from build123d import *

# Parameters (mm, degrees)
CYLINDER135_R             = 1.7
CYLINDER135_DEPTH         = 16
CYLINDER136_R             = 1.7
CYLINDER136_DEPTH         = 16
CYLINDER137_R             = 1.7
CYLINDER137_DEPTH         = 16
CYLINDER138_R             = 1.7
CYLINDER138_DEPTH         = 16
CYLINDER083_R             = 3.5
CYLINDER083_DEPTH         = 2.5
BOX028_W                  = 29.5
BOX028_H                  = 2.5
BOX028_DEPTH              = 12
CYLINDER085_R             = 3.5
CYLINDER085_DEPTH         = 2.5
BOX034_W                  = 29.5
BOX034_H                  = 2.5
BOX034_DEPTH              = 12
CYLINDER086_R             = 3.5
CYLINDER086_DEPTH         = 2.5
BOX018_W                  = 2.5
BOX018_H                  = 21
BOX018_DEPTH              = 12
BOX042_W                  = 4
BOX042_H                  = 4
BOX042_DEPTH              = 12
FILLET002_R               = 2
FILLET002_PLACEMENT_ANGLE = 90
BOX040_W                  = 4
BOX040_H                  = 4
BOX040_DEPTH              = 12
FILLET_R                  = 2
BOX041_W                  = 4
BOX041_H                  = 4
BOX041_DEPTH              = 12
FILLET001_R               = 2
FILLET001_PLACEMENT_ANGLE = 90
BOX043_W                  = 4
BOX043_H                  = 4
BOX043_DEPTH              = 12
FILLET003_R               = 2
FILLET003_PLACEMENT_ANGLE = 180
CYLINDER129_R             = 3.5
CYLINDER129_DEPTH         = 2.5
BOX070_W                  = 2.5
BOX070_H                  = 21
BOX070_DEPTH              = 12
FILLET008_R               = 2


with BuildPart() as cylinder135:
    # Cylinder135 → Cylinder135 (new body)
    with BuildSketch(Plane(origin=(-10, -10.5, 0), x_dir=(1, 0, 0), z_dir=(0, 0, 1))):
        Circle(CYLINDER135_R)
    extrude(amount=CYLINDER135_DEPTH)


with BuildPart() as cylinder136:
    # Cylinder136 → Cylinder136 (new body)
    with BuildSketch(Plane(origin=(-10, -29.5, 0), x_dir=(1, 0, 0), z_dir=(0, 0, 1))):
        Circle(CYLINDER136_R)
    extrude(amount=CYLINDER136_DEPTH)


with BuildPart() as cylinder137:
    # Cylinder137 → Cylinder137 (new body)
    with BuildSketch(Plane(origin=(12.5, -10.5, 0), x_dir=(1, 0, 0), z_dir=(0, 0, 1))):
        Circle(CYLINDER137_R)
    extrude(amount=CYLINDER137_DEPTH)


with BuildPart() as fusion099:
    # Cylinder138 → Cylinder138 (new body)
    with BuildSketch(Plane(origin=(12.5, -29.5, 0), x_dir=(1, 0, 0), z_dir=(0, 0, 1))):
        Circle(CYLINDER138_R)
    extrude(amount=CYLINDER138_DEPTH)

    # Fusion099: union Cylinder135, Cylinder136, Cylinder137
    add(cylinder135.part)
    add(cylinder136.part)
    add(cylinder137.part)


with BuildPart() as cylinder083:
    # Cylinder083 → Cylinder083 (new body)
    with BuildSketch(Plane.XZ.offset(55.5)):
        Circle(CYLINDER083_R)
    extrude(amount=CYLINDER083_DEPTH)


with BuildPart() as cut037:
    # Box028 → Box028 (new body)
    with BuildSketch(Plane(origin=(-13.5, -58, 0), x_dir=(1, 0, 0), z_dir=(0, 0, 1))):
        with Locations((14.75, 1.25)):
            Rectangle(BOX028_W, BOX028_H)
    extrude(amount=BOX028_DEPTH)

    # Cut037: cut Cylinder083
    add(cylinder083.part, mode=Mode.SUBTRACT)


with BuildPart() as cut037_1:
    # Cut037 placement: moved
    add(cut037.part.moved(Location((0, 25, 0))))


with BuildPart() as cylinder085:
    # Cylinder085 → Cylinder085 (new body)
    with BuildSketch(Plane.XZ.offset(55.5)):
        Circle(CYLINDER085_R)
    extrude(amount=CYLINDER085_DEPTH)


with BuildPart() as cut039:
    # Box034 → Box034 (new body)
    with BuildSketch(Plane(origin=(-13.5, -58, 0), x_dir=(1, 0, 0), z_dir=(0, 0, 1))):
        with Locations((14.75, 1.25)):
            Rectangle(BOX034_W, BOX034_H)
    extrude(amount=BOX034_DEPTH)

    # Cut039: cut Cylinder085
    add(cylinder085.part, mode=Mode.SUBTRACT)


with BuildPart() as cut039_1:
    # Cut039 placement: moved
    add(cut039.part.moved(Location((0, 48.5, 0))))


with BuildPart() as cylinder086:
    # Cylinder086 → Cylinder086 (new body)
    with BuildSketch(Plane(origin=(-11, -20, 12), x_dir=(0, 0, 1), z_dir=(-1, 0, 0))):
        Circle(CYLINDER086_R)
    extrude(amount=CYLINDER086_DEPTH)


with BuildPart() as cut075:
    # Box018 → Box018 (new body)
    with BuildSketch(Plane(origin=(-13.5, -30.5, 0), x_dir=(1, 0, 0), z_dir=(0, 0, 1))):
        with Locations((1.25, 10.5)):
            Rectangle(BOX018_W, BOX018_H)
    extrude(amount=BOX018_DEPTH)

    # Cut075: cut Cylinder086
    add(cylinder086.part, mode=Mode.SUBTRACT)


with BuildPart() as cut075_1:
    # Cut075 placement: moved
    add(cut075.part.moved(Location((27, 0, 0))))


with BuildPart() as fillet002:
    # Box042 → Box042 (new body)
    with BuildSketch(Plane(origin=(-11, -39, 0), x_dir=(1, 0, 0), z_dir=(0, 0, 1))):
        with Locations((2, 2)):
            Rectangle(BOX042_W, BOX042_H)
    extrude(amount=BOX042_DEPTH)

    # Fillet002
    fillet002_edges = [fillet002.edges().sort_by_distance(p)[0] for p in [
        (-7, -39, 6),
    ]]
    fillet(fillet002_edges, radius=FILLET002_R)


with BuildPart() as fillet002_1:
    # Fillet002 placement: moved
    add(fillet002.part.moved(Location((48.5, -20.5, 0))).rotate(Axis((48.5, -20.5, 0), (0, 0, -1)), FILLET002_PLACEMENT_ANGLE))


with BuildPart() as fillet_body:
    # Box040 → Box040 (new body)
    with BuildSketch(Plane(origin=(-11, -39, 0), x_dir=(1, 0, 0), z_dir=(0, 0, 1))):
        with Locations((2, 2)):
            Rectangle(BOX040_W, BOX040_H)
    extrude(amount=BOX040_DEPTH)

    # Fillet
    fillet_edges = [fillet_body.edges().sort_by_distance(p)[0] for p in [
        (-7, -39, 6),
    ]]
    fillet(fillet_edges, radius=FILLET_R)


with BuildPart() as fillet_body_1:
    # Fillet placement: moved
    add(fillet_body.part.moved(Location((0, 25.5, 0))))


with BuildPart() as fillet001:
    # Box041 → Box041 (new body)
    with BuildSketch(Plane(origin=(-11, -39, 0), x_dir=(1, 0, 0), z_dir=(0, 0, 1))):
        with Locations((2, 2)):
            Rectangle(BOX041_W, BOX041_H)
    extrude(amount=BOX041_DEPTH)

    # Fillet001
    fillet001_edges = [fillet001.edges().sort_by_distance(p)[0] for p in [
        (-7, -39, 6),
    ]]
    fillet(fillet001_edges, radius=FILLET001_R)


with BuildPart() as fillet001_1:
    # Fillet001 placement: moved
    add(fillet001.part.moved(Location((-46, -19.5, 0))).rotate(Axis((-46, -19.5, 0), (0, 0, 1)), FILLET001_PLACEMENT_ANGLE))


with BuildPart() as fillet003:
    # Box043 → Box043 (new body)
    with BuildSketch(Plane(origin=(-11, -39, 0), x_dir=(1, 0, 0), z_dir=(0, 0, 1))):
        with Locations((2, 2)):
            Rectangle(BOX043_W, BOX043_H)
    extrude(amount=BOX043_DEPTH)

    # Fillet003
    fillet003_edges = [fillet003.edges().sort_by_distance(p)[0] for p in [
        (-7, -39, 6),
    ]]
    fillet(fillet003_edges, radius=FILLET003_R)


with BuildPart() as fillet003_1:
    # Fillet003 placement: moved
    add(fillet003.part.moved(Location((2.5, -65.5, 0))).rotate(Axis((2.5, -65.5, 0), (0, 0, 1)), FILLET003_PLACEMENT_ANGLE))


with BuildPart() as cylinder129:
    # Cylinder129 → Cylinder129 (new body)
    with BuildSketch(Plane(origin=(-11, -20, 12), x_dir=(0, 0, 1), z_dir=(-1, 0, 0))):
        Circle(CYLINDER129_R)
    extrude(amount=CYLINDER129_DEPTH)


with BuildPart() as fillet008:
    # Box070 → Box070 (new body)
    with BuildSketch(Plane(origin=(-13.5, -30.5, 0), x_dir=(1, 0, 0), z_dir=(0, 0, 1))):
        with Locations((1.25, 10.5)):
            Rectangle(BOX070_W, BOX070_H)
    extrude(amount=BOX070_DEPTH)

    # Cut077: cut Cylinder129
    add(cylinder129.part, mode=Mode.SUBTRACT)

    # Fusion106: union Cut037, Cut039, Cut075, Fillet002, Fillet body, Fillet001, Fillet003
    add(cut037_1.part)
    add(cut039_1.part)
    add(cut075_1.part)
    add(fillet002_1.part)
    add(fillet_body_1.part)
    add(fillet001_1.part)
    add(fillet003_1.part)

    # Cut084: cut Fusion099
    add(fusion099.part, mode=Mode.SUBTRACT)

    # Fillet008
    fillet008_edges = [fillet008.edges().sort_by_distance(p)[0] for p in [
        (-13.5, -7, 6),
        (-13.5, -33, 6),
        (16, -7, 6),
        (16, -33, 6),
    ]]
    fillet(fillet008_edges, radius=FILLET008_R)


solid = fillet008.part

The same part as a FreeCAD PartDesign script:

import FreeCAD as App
import Part
import Sketcher
from FreeCAD import Vector


def edges_at(feature, points):
    """Names of the edges that pass closest to the given points."""
    edges = feature.Shape.Edges
    near = lambda p: min(range(len(edges)), key=lambda i: edges[i].distToShape(Part.Vertex(*p))[0])
    return sorted({f"Edge{near(p) + 1}" for p in points})

doc = App.newDocument("Part")
body = doc.addObject("PartDesign::Body", "Body")

sketch1 = body.newObject("Sketcher::SketchObject", "Sketch")
sketch1.AttachmentSupport = (doc.getObject("XY_Plane"), [""])
sketch1.MapMode = "FlatFace"
sketch1.addGeometry(Part.Circle(Vector(-10, -10.5, 0), Vector(0, 0, 1), 1.7), False)
sketch1.addConstraint([
    Sketcher.Constraint("Diameter", 0, 3.4),
    Sketcher.Constraint("DistanceX", 0, 3, -1, 1, 10.0),
    Sketcher.Constraint("DistanceY", 0, 3, -1, 1, 10.5),
])
pad1 = body.newObject("PartDesign::Pad", "Pad")
pad1.Profile = sketch1
pad1.Length = 16
body2 = doc.addObject("PartDesign::Body", "Body001")

sketch2 = body2.newObject("Sketcher::SketchObject", "Sketch001")
sketch2.AttachmentSupport = (doc.getObject("XY_Plane001"), [""])
sketch2.MapMode = "FlatFace"
sketch2.addGeometry(Part.Circle(Vector(-10, -29.5, 0), Vector(0, 0, 1), 1.7), False)
sketch2.addConstraint([
    Sketcher.Constraint("Diameter", 0, 3.4),
    Sketcher.Constraint("DistanceX", 0, 3, -1, 1, 10.0),
    Sketcher.Constraint("DistanceY", 0, 3, -1, 1, 29.5),
])
pad2 = body2.newObject("PartDesign::Pad", "Pad001")
pad2.Profile = sketch2
pad2.Length = 16
body3 = doc.addObject("PartDesign::Body", "Body002")

sketch3 = body3.newObject("Sketcher::SketchObject", "Sketch002")
sketch3.AttachmentSupport = (doc.getObject("XY_Plane002"), [""])
sketch3.MapMode = "FlatFace"
sketch3.addGeometry(Part.Circle(Vector(12.5, -10.5, 0), Vector(0, 0, 1), 1.7), False)
sketch3.addConstraint([
    Sketcher.Constraint("Diameter", 0, 3.4),
    Sketcher.Constraint("DistanceX", -1, 1, 0, 3, 12.5),
    Sketcher.Constraint("DistanceY", 0, 3, -1, 1, 10.5),
])
pad3 = body3.newObject("PartDesign::Pad", "Pad002")
pad3.Profile = sketch3
pad3.Length = 16
body4 = doc.addObject("PartDesign::Body", "Body003")
body4.AllowCompound = True

sketch4 = body4.newObject("Sketcher::SketchObject", "Sketch003")
sketch4.AttachmentSupport = (doc.getObject("XY_Plane003"), [""])
sketch4.MapMode = "FlatFace"
sketch4.addGeometry(Part.Circle(Vector(12.5, -29.5, 0), Vector(0, 0, 1), 1.7), False)
sketch4.addConstraint([
    Sketcher.Constraint("Diameter", 0, 3.4),
    Sketcher.Constraint("DistanceX", -1, 1, 0, 3, 12.5),
    Sketcher.Constraint("DistanceY", 0, 3, -1, 1, 29.5),
])
pad4 = body4.newObject("PartDesign::Pad", "Pad003")
pad4.Profile = sketch4
pad4.Length = 16
doc.recompute()

boolean = body4.newObject("PartDesign::Boolean", "Boolean")
boolean.Type = "Fuse"
boolean.addObjects([body])
doc.recompute()

boolean2 = body4.newObject("PartDesign::Boolean", "Boolean001")
boolean2.Type = "Fuse"
boolean2.addObjects([body2])
doc.recompute()

boolean3 = body4.newObject("PartDesign::Boolean", "Boolean002")
boolean3.Type = "Fuse"
boolean3.addObjects([body3])
body5 = doc.addObject("PartDesign::Body", "Body004")

sketch5 = body5.newObject("Sketcher::SketchObject", "Sketch004")
sketch5.AttachmentSupport = (doc.getObject("XZ_Plane004"), [""])
sketch5.MapMode = "FlatFace"
sketch5.AttachmentOffset = App.Placement(Vector(0, 0, 55.5), App.Rotation())
sketch5.addGeometry(Part.Circle(Vector(0, 0, 0), Vector(0, 0, 1), 3.5), False)
sketch5.addConstraint([
    Sketcher.Constraint("Coincident", 0, 3, -1, 1),
    Sketcher.Constraint("Diameter", 0, 7.0),
])
pad5 = body5.newObject("PartDesign::Pad", "Pad004")
pad5.Profile = sketch5
pad5.Length = 2.5
body6 = doc.addObject("PartDesign::Body", "Body005")

sketch6 = body6.newObject("Sketcher::SketchObject", "Sketch005")
sketch6.AttachmentSupport = (doc.getObject("XY_Plane005"), [""])
sketch6.MapMode = "FlatFace"
sketch6.addGeometry([
    Part.LineSegment(Vector(-13.5, -55.5, 0), Vector(-13.5, -58, 0)),
    Part.LineSegment(Vector(-13.5, -58, 0), Vector(16, -58, 0)),
    Part.LineSegment(Vector(16, -58, 0), Vector(16, -55.5, 0)),
    Part.LineSegment(Vector(16, -55.5, 0), Vector(-13.5, -55.5, 0)),
], False)
sketch6.addConstraint([
    Sketcher.Constraint("Coincident", 0, 2, 1, 1),
    Sketcher.Constraint("Coincident", 1, 2, 2, 1),
    Sketcher.Constraint("Coincident", 2, 2, 3, 1),
    Sketcher.Constraint("Coincident", 3, 2, 0, 1),
    Sketcher.Constraint("Vertical", 0),
    Sketcher.Constraint("Horizontal", 1),
    Sketcher.Constraint("Vertical", 2),
    Sketcher.Constraint("Horizontal", 3),
    Sketcher.Constraint("DistanceX", 1, 1, 1, 2, 29.5),
    Sketcher.Constraint("DistanceY", 0, 2, 0, 1, 2.5),
    Sketcher.Constraint("DistanceY", 0, 2, -1, 1, 58.0),
    Sketcher.Constraint("DistanceX", -1, 1, 1, 2, 16.0),
])
pad6 = body6.newObject("PartDesign::Pad", "Pad005")
pad6.Profile = sketch6
pad6.Length = 12
doc.recompute()

boolean4 = body6.newObject("PartDesign::Boolean", "Boolean003")
boolean4.Type = "Cut"
boolean4.addObjects([body5])
body7 = doc.addObject("PartDesign::Body", "Body006")
doc.recompute()

body6.Placement = App.Placement(Vector(0, 25, 0), App.Rotation(Vector(0, 0, 1), 0))
boolean5 = body7.newObject("PartDesign::Boolean", "Boolean004")
boolean5.Type = "Fuse"
boolean5.addObjects([body6])
body8 = doc.addObject("PartDesign::Body", "Body007")

sketch7 = body8.newObject("Sketcher::SketchObject", "Sketch006")
sketch7.AttachmentSupport = (doc.getObject("XZ_Plane007"), [""])
sketch7.MapMode = "FlatFace"
sketch7.AttachmentOffset = App.Placement(Vector(0, 0, 55.5), App.Rotation())
sketch7.addGeometry(Part.Circle(Vector(0, 0, 0), Vector(0, 0, 1), 3.5), False)
sketch7.addConstraint([
    Sketcher.Constraint("Coincident", 0, 3, -1, 1),
    Sketcher.Constraint("Diameter", 0, 7.0),
])
pad7 = body8.newObject("PartDesign::Pad", "Pad006")
pad7.Profile = sketch7
pad7.Length = 2.5
body9 = doc.addObject("PartDesign::Body", "Body008")

sketch8 = body9.newObject("Sketcher::SketchObject", "Sketch007")
sketch8.AttachmentSupport = (doc.getObject("XY_Plane008"), [""])
sketch8.MapMode = "FlatFace"
sketch8.addGeometry([
    Part.LineSegment(Vector(-13.5, -55.5, 0), Vector(-13.5, -58, 0)),
    Part.LineSegment(Vector(-13.5, -58, 0), Vector(16, -58, 0)),
    Part.LineSegment(Vector(16, -58, 0), Vector(16, -55.5, 0)),
    Part.LineSegment(Vector(16, -55.5, 0), Vector(-13.5, -55.5, 0)),
], False)
sketch8.addConstraint([
    Sketcher.Constraint("Coincident", 0, 2, 1, 1),
    Sketcher.Constraint("Coincident", 1, 2, 2, 1),
    Sketcher.Constraint("Coincident", 2, 2, 3, 1),
    Sketcher.Constraint("Coincident", 3, 2, 0, 1),
    Sketcher.Constraint("Vertical", 0),
    Sketcher.Constraint("Horizontal", 1),
    Sketcher.Constraint("Vertical", 2),
    Sketcher.Constraint("Horizontal", 3),
    Sketcher.Constraint("DistanceX", 1, 1, 1, 2, 29.5),
    Sketcher.Constraint("DistanceY", 0, 2, 0, 1, 2.5),
    Sketcher.Constraint("DistanceY", 0, 2, -1, 1, 58.0),
    Sketcher.Constraint("DistanceX", -1, 1, 1, 2, 16.0),
])
pad8 = body9.newObject("PartDesign::Pad", "Pad007")
pad8.Profile = sketch8
pad8.Length = 12
doc.recompute()

boolean6 = body9.newObject("PartDesign::Boolean", "Boolean005")
boolean6.Type = "Cut"
boolean6.addObjects([body8])
body10 = doc.addObject("PartDesign::Body", "Body009")
doc.recompute()

body9.Placement = App.Placement(Vector(0, 48.5, 0), App.Rotation(Vector(0, 0, 1), 0))
boolean7 = body10.newObject("PartDesign::Boolean", "Boolean006")
boolean7.Type = "Fuse"
boolean7.addObjects([body9])
body11 = doc.addObject("PartDesign::Body", "Body010")

sketch9 = body11.newObject("Sketcher::SketchObject", "Sketch008")
sketch9.AttachmentSupport = (doc.getObject("YZ_Plane010"), [""])
sketch9.MapMode = "FlatFace"
sketch9.AttachmentOffset = App.Placement(Vector(0, 0, -11), App.Rotation())
sketch9.addGeometry(Part.Circle(Vector(-20, 12, 0), Vector(0, 0, 1), 3.5), False)
sketch9.addConstraint([
    Sketcher.Constraint("Diameter", 0, 7.0),
    Sketcher.Constraint("DistanceX", 0, 3, -1, 1, 20.0),
    Sketcher.Constraint("DistanceY", -1, 1, 0, 3, 12.0),
])
pad9 = body11.newObject("PartDesign::Pad", "Pad008")
pad9.Profile = sketch9
pad9.Length = 2.5
pad9.Reversed = True
body12 = doc.addObject("PartDesign::Body", "Body011")

sketch10 = body12.newObject("Sketcher::SketchObject", "Sketch009")
sketch10.AttachmentSupport = (doc.getObject("XY_Plane011"), [""])
sketch10.MapMode = "FlatFace"
sketch10.addGeometry([
    Part.LineSegment(Vector(-13.5, -9.5, 0), Vector(-13.5, -30.5, 0)),
    Part.LineSegment(Vector(-13.5, -30.5, 0), Vector(-11, -30.5, 0)),
    Part.LineSegment(Vector(-11, -30.5, 0), Vector(-11, -9.5, 0)),
    Part.LineSegment(Vector(-11, -9.5, 0), Vector(-13.5, -9.5, 0)),
], False)
sketch10.addConstraint([
    Sketcher.Constraint("Coincident", 0, 2, 1, 1),
    Sketcher.Constraint("Coincident", 1, 2, 2, 1),
    Sketcher.Constraint("Coincident", 2, 2, 3, 1),
    Sketcher.Constraint("Coincident", 3, 2, 0, 1),
    Sketcher.Constraint("Vertical", 0),
    Sketcher.Constraint("Horizontal", 1),
    Sketcher.Constraint("Vertical", 2),
    Sketcher.Constraint("Horizontal", 3),
    Sketcher.Constraint("DistanceY", 0, 2, 0, 1, 21.0),
    Sketcher.Constraint("DistanceX", 1, 1, 1, 2, 2.5),
    Sketcher.Constraint("DistanceX", 1, 2, -1, 1, 11.0),
    Sketcher.Constraint("DistanceY", 0, 2, -1, 1, 30.5),
])
pad10 = body12.newObject("PartDesign::Pad", "Pad009")
pad10.Profile = sketch10
pad10.Length = 12
doc.recompute()

boolean8 = body12.newObject("PartDesign::Boolean", "Boolean007")
boolean8.Type = "Cut"
boolean8.addObjects([body11])
body13 = doc.addObject("PartDesign::Body", "Body012")
doc.recompute()

body12.Placement = App.Placement(Vector(27, 0, 0), App.Rotation(Vector(0, 0, 1), 0))
boolean9 = body13.newObject("PartDesign::Boolean", "Boolean008")
boolean9.Type = "Fuse"
boolean9.addObjects([body12])
body14 = doc.addObject("PartDesign::Body", "Body013")

sketch11 = body14.newObject("Sketcher::SketchObject", "Sketch010")
sketch11.AttachmentSupport = (doc.getObject("XY_Plane013"), [""])
sketch11.MapMode = "FlatFace"
sketch11.addGeometry([
    Part.LineSegment(Vector(-11, -35, 0), Vector(-11, -39, 0)),
    Part.LineSegment(Vector(-11, -39, 0), Vector(-7, -39, 0)),
    Part.LineSegment(Vector(-7, -39, 0), Vector(-7, -35, 0)),
    Part.LineSegment(Vector(-7, -35, 0), Vector(-11, -35, 0)),
], False)
sketch11.addConstraint([
    Sketcher.Constraint("Coincident", 0, 2, 1, 1),
    Sketcher.Constraint("Coincident", 1, 2, 2, 1),
    Sketcher.Constraint("Coincident", 2, 2, 3, 1),
    Sketcher.Constraint("Coincident", 3, 2, 0, 1),
    Sketcher.Constraint("Vertical", 0),
    Sketcher.Constraint("Horizontal", 1),
    Sketcher.Constraint("Vertical", 2),
    Sketcher.Constraint("Horizontal", 3),
    Sketcher.Constraint("Equal", 3, 0),
    Sketcher.Constraint("DistanceX", 1, 1, 1, 2, 4.0),
    Sketcher.Constraint("DistanceX", 0, 2, -1, 1, 11.0),
    Sketcher.Constraint("DistanceY", 0, 2, -1, 1, 39.0),
])
pad11 = body14.newObject("PartDesign::Pad", "Pad010")
pad11.Profile = sketch11
pad11.Length = 12
doc.recompute()

fillet = body14.newObject("PartDesign::Fillet", "Fillet")
fillet.Base = (pad11, edges_at(pad11, [(-7, -39, 6)]))
fillet.Radius = 2
body15 = doc.addObject("PartDesign::Body", "Body014")
doc.recompute()

body14.Placement = App.Placement(Vector(48.5, -20.5, 0), App.Rotation(Vector(0, 0, -1), 90))
boolean10 = body15.newObject("PartDesign::Boolean", "Boolean009")
boolean10.Type = "Fuse"
boolean10.addObjects([body14])
body16 = doc.addObject("PartDesign::Body", "Body015")

sketch12 = body16.newObject("Sketcher::SketchObject", "Sketch011")
sketch12.AttachmentSupport = (doc.getObject("XY_Plane015"), [""])
sketch12.MapMode = "FlatFace"
sketch12.addGeometry([
    Part.LineSegment(Vector(-11, -35, 0), Vector(-11, -39, 0)),
    Part.LineSegment(Vector(-11, -39, 0), Vector(-7, -39, 0)),
    Part.LineSegment(Vector(-7, -39, 0), Vector(-7, -35, 0)),
    Part.LineSegment(Vector(-7, -35, 0), Vector(-11, -35, 0)),
], False)
sketch12.addConstraint([
    Sketcher.Constraint("Coincident", 0, 2, 1, 1),
    Sketcher.Constraint("Coincident", 1, 2, 2, 1),
    Sketcher.Constraint("Coincident", 2, 2, 3, 1),
    Sketcher.Constraint("Coincident", 3, 2, 0, 1),
    Sketcher.Constraint("Vertical", 0),
    Sketcher.Constraint("Horizontal", 1),
    Sketcher.Constraint("Vertical", 2),
    Sketcher.Constraint("Horizontal", 3),
    Sketcher.Constraint("Equal", 3, 0),
    Sketcher.Constraint("DistanceX", 1, 1, 1, 2, 4.0),
    Sketcher.Constraint("DistanceX", 0, 2, -1, 1, 11.0),
    Sketcher.Constraint("DistanceY", 0, 2, -1, 1, 39.0),
])
pad12 = body16.newObject("PartDesign::Pad", "Pad011")
pad12.Profile = sketch12
pad12.Length = 12
doc.recompute()

fillet2 = body16.newObject("PartDesign::Fillet", "Fillet001")
fillet2.Base = (pad12, edges_at(pad12, [(-7, -39, 6)]))
fillet2.Radius = 2
body17 = doc.addObject("PartDesign::Body", "Body016")
doc.recompute()

body16.Placement = App.Placement(Vector(0, 25.5, 0), App.Rotation(Vector(0, 0, 1), 0))
boolean11 = body17.newObject("PartDesign::Boolean", "Boolean010")
boolean11.Type = "Fuse"
boolean11.addObjects([body16])
body18 = doc.addObject("PartDesign::Body", "Body017")

sketch13 = body18.newObject("Sketcher::SketchObject", "Sketch012")
sketch13.AttachmentSupport = (doc.getObject("XY_Plane017"), [""])
sketch13.MapMode = "FlatFace"
sketch13.addGeometry([
    Part.LineSegment(Vector(-11, -35, 0), Vector(-11, -39, 0)),
    Part.LineSegment(Vector(-11, -39, 0), Vector(-7, -39, 0)),
    Part.LineSegment(Vector(-7, -39, 0), Vector(-7, -35, 0)),
    Part.LineSegment(Vector(-7, -35, 0), Vector(-11, -35, 0)),
], False)
sketch13.addConstraint([
    Sketcher.Constraint("Coincident", 0, 2, 1, 1),
    Sketcher.Constraint("Coincident", 1, 2, 2, 1),
    Sketcher.Constraint("Coincident", 2, 2, 3, 1),
    Sketcher.Constraint("Coincident", 3, 2, 0, 1),
    Sketcher.Constraint("Vertical", 0),
    Sketcher.Constraint("Horizontal", 1),
    Sketcher.Constraint("Vertical", 2),
    Sketcher.Constraint("Horizontal", 3),
    Sketcher.Constraint("Equal", 3, 0),
    Sketcher.Constraint("DistanceX", 1, 1, 1, 2, 4.0),
    Sketcher.Constraint("DistanceX", 0, 2, -1, 1, 11.0),
    Sketcher.Constraint("DistanceY", 0, 2, -1, 1, 39.0),
])
pad13 = body18.newObject("PartDesign::Pad", "Pad012")
pad13.Profile = sketch13
pad13.Length = 12
doc.recompute()

fillet3 = body18.newObject("PartDesign::Fillet", "Fillet002")
fillet3.Base = (pad13, edges_at(pad13, [(-7, -39, 6)]))
fillet3.Radius = 2
body19 = doc.addObject("PartDesign::Body", "Body018")
doc.recompute()

body18.Placement = App.Placement(Vector(-46, -19.5, 0), App.Rotation(Vector(0, 0, 1), 90))
boolean12 = body19.newObject("PartDesign::Boolean", "Boolean011")
boolean12.Type = "Fuse"
boolean12.addObjects([body18])
body20 = doc.addObject("PartDesign::Body", "Body019")

sketch14 = body20.newObject("Sketcher::SketchObject", "Sketch013")
sketch14.AttachmentSupport = (doc.getObject("XY_Plane019"), [""])
sketch14.MapMode = "FlatFace"
sketch14.addGeometry([
    Part.LineSegment(Vector(-11, -35, 0), Vector(-11, -39, 0)),
    Part.LineSegment(Vector(-11, -39, 0), Vector(-7, -39, 0)),
    Part.LineSegment(Vector(-7, -39, 0), Vector(-7, -35, 0)),
    Part.LineSegment(Vector(-7, -35, 0), Vector(-11, -35, 0)),
], False)
sketch14.addConstraint([
    Sketcher.Constraint("Coincident", 0, 2, 1, 1),
    Sketcher.Constraint("Coincident", 1, 2, 2, 1),
    Sketcher.Constraint("Coincident", 2, 2, 3, 1),
    Sketcher.Constraint("Coincident", 3, 2, 0, 1),
    Sketcher.Constraint("Vertical", 0),
    Sketcher.Constraint("Horizontal", 1),
    Sketcher.Constraint("Vertical", 2),
    Sketcher.Constraint("Horizontal", 3),
    Sketcher.Constraint("Equal", 3, 0),
    Sketcher.Constraint("DistanceX", 1, 1, 1, 2, 4.0),
    Sketcher.Constraint("DistanceX", 0, 2, -1, 1, 11.0),
    Sketcher.Constraint("DistanceY", 0, 2, -1, 1, 39.0),
])
pad14 = body20.newObject("PartDesign::Pad", "Pad013")
pad14.Profile = sketch14
pad14.Length = 12
doc.recompute()

fillet4 = body20.newObject("PartDesign::Fillet", "Fillet003")
fillet4.Base = (pad14, edges_at(pad14, [(-7, -39, 6)]))
fillet4.Radius = 2
body21 = doc.addObject("PartDesign::Body", "Body020")
doc.recompute()

body20.Placement = App.Placement(Vector(2.5, -65.5, 0), App.Rotation(Vector(0, 0, 1), 180))
boolean13 = body21.newObject("PartDesign::Boolean", "Boolean012")
boolean13.Type = "Fuse"
boolean13.addObjects([body20])
body22 = doc.addObject("PartDesign::Body", "Body021")

sketch15 = body22.newObject("Sketcher::SketchObject", "Sketch014")
sketch15.AttachmentSupport = (doc.getObject("YZ_Plane021"), [""])
sketch15.MapMode = "FlatFace"
sketch15.AttachmentOffset = App.Placement(Vector(0, 0, -11), App.Rotation())
sketch15.addGeometry(Part.Circle(Vector(-20, 12, 0), Vector(0, 0, 1), 3.5), False)
sketch15.addConstraint([
    Sketcher.Constraint("Diameter", 0, 7.0),
    Sketcher.Constraint("DistanceX", 0, 3, -1, 1, 20.0),
    Sketcher.Constraint("DistanceY", -1, 1, 0, 3, 12.0),
])
pad15 = body22.newObject("PartDesign::Pad", "Pad014")
pad15.Profile = sketch15
pad15.Length = 2.5
pad15.Reversed = True
body23 = doc.addObject("PartDesign::Body", "Body022")

sketch16 = body23.newObject("Sketcher::SketchObject", "Sketch015")
sketch16.AttachmentSupport = (doc.getObject("XY_Plane022"), [""])
sketch16.MapMode = "FlatFace"
sketch16.addGeometry([
    Part.LineSegment(Vector(-13.5, -9.5, 0), Vector(-13.5, -30.5, 0)),
    Part.LineSegment(Vector(-13.5, -30.5, 0), Vector(-11, -30.5, 0)),
    Part.LineSegment(Vector(-11, -30.5, 0), Vector(-11, -9.5, 0)),
    Part.LineSegment(Vector(-11, -9.5, 0), Vector(-13.5, -9.5, 0)),
], False)
sketch16.addConstraint([
    Sketcher.Constraint("Coincident", 0, 2, 1, 1),
    Sketcher.Constraint("Coincident", 1, 2, 2, 1),
    Sketcher.Constraint("Coincident", 2, 2, 3, 1),
    Sketcher.Constraint("Coincident", 3, 2, 0, 1),
    Sketcher.Constraint("Vertical", 0),
    Sketcher.Constraint("Horizontal", 1),
    Sketcher.Constraint("Vertical", 2),
    Sketcher.Constraint("Horizontal", 3),
    Sketcher.Constraint("DistanceY", 0, 2, 0, 1, 21.0),
    Sketcher.Constraint("DistanceX", 1, 1, 1, 2, 2.5),
    Sketcher.Constraint("DistanceX", 1, 2, -1, 1, 11.0),
    Sketcher.Constraint("DistanceY", 0, 2, -1, 1, 30.5),
])
pad16 = body23.newObject("PartDesign::Pad", "Pad015")
pad16.Profile = sketch16
pad16.Length = 12
doc.recompute()

boolean14 = body23.newObject("PartDesign::Boolean", "Boolean013")
boolean14.Type = "Cut"
boolean14.addObjects([body22])
doc.recompute()

boolean15 = body23.newObject("PartDesign::Boolean", "Boolean014")
boolean15.Type = "Fuse"
boolean15.addObjects([body7])
doc.recompute()

boolean16 = body23.newObject("PartDesign::Boolean", "Boolean015")
boolean16.Type = "Fuse"
boolean16.addObjects([body10])
doc.recompute()

boolean17 = body23.newObject("PartDesign::Boolean", "Boolean016")
boolean17.Type = "Fuse"
boolean17.addObjects([body13])
doc.recompute()

boolean18 = body23.newObject("PartDesign::Boolean", "Boolean017")
boolean18.Type = "Fuse"
boolean18.addObjects([body15])
doc.recompute()

boolean19 = body23.newObject("PartDesign::Boolean", "Boolean018")
boolean19.Type = "Fuse"
boolean19.addObjects([body17])
doc.recompute()

boolean20 = body23.newObject("PartDesign::Boolean", "Boolean019")
boolean20.Type = "Fuse"
boolean20.addObjects([body19])
doc.recompute()

boolean21 = body23.newObject("PartDesign::Boolean", "Boolean020")
boolean21.Type = "Fuse"
boolean21.addObjects([body21])
doc.recompute()

boolean22 = body23.newObject("PartDesign::Boolean", "Boolean021")
boolean22.Type = "Cut"
boolean22.addObjects([body4])
doc.recompute()

fillet5 = body23.newObject("PartDesign::Fillet", "Fillet004")
fillet5.Base = (boolean22, edges_at(boolean22, [
    (-13.5, -7, 6),
    (-13.5, -33, 6),
    (16, -7, 6),
    (16, -33, 6),
]))
fillet5.Radius = 2

doc.recompute()
